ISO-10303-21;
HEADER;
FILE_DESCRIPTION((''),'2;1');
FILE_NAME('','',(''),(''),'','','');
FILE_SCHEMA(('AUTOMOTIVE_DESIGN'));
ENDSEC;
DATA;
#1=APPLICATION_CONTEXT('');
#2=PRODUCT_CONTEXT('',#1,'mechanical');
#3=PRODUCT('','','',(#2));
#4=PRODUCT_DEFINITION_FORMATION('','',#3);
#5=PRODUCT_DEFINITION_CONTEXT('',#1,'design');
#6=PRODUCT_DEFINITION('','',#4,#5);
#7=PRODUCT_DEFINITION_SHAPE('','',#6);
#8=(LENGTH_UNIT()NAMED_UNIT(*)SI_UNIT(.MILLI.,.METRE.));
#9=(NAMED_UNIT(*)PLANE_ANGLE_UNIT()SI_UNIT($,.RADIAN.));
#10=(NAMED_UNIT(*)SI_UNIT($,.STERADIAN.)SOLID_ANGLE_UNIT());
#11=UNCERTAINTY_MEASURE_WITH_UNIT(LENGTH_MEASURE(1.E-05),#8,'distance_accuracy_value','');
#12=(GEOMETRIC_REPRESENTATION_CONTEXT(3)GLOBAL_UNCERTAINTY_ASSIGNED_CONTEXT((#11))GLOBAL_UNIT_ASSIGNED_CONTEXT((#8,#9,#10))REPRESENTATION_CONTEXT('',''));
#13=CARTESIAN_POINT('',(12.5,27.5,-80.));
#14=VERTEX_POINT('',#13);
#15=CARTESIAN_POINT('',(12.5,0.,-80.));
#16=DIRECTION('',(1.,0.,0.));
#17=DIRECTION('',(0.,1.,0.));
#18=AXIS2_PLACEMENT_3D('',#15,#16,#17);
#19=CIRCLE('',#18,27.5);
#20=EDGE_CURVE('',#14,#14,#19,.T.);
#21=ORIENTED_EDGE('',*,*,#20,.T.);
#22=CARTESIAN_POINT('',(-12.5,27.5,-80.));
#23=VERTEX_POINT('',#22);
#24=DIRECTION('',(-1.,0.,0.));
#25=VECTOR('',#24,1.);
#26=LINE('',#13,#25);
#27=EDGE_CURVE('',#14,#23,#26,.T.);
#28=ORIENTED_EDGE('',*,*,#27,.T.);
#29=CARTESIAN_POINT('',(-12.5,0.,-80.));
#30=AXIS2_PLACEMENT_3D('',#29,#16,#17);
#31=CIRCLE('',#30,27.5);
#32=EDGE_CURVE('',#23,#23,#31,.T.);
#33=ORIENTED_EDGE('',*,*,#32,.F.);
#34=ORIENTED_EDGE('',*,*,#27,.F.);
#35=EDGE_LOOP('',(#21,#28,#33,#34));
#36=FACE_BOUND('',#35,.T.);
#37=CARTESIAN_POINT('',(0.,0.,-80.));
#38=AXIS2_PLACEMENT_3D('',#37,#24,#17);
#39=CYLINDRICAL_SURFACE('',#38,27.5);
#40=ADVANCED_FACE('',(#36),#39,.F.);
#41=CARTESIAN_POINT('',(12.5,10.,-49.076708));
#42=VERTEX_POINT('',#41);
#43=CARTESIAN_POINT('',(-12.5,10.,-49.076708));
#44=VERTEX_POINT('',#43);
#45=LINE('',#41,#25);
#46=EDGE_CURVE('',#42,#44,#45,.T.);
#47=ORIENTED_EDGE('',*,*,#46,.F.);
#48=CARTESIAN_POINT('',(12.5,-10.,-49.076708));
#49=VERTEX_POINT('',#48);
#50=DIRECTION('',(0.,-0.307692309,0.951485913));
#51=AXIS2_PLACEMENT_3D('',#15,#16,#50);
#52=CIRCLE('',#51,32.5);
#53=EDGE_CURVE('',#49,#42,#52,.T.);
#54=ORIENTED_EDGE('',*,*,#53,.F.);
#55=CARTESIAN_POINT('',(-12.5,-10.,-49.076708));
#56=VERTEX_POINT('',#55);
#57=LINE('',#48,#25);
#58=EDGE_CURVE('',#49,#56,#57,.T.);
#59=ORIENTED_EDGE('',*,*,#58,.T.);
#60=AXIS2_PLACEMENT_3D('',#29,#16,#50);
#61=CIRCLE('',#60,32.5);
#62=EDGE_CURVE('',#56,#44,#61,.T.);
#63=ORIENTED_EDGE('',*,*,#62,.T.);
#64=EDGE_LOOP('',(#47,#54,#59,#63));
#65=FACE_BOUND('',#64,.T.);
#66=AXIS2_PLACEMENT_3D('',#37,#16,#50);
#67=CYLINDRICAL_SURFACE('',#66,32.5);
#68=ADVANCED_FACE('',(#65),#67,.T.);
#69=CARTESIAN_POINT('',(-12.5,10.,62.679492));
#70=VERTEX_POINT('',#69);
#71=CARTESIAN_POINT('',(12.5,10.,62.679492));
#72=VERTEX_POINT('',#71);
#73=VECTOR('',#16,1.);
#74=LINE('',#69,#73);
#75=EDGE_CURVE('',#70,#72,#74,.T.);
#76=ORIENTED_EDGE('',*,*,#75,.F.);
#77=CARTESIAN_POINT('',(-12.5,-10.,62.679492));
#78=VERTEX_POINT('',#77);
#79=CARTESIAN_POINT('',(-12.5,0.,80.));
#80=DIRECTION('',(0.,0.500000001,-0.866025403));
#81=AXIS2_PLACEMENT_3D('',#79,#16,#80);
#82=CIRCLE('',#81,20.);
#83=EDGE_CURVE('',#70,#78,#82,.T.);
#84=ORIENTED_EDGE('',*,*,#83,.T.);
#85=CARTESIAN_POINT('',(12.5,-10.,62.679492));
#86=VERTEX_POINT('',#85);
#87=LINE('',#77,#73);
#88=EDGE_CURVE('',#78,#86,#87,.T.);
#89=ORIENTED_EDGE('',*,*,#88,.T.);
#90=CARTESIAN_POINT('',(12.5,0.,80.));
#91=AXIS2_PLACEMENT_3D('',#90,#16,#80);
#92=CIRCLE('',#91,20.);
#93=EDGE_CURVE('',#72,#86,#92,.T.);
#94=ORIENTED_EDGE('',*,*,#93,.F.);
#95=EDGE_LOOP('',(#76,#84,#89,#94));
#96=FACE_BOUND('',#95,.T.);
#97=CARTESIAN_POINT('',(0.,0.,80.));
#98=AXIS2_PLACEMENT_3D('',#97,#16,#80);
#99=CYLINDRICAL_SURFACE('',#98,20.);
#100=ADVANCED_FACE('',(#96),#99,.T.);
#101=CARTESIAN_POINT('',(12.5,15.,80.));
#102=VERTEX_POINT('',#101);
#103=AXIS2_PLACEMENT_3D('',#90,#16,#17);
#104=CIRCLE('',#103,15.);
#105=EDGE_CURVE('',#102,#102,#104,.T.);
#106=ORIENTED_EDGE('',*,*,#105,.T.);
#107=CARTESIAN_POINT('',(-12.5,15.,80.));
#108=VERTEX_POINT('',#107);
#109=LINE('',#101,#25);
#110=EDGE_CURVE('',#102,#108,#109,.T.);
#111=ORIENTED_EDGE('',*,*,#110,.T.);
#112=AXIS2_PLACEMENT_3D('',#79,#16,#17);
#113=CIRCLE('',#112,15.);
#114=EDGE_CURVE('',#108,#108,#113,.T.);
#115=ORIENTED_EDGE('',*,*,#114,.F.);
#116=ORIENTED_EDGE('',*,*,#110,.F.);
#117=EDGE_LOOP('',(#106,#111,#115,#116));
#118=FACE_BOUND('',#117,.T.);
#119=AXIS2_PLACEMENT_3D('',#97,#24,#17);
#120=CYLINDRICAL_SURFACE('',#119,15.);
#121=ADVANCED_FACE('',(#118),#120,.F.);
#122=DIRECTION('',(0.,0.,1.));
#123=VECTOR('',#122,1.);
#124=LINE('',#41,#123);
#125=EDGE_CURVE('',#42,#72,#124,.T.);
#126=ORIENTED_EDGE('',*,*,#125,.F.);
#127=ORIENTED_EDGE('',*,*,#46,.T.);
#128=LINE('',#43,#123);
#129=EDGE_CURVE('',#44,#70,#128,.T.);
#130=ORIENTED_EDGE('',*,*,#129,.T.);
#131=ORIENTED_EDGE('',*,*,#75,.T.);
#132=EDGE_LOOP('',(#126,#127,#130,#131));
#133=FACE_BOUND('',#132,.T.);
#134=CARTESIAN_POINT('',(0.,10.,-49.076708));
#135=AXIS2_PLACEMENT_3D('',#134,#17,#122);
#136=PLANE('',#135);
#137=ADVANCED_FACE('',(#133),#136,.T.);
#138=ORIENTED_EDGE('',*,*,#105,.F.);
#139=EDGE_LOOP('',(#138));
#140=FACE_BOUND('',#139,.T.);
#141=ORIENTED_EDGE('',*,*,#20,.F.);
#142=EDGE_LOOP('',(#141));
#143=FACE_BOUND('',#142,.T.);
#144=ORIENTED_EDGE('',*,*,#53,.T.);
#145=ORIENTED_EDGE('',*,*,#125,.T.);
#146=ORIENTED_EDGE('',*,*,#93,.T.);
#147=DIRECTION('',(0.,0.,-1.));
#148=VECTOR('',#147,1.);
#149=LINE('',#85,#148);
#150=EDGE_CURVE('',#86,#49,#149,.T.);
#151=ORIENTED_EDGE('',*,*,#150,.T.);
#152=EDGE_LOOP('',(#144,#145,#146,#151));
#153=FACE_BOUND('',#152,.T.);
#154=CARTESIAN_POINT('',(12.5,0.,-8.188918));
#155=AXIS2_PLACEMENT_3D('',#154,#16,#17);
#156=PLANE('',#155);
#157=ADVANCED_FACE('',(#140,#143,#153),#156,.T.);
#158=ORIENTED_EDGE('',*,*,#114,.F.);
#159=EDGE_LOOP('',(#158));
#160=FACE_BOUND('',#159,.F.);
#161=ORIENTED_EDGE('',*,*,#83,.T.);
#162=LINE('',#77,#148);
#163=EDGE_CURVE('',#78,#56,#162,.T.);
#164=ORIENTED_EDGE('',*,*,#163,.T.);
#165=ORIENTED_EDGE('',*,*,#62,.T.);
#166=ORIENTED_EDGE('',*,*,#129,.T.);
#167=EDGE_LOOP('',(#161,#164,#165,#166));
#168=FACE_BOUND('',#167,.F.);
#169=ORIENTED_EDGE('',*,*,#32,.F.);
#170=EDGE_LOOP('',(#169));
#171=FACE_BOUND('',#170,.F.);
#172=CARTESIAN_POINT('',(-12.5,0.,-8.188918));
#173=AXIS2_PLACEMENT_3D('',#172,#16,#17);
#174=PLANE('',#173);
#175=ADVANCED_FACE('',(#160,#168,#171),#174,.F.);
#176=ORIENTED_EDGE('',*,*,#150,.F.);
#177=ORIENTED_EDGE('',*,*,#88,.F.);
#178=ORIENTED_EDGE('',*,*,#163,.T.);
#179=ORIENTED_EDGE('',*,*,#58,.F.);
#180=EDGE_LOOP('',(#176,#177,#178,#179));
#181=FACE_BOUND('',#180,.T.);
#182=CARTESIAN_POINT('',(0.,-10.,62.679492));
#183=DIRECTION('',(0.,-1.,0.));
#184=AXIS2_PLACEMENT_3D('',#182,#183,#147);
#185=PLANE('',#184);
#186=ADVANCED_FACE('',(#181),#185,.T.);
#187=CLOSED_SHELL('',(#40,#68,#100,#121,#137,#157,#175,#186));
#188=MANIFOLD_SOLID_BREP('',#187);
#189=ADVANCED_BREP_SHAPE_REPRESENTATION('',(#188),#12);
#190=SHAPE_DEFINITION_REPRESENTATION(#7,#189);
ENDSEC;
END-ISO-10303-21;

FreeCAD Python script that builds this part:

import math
import FreeCAD as App
import Part
import Sketcher
Q = App.Units.Quantity

doc = App.newDocument("Part")
body = doc.addObject("PartDesign::Body", "Body")

# Sketch on YZ plane
sketch1 = body.newObject("Sketcher::SketchObject", "Sketch")
sketch1.AttachmentSupport = (doc.getObject("YZ_Plane"), [""])
sketch1.MapMode = "FlatFace"
sketch1.addGeometry([
    Part.LineSegment(App.Vector(10, -49.076708, 0), App.Vector(10, 62.679492, 0)),  # 0
    Part.ArcOfCircle(Part.Circle(App.Vector(0, 80, 0), App.Vector(0, 0, 1), 20), math.radians(-60), math.radians(240)),  # 1
    Part.LineSegment(App.Vector(-10, 62.679492, 0), App.Vector(-10, -49.076708, 0)),  # 2
    Part.ArcOfCircle(Part.Circle(App.Vector(0, -80, 0), App.Vector(0, 0, 1), 32.5), math.radians(107.920213), math.radians(432.079787)),  # 3
    Part.Circle(App.Vector(0, -80, 0), App.Vector(0, 0, 1), 27.5),  # 4
    Part.Circle(App.Vector(0, 80, 0), App.Vector(0, 0, 1), 15),  # 5
], False)
sketch1.addConstraint([
    Sketcher.Constraint("Coincident", 0, 2, 1, 1),
    Sketcher.Constraint("Coincident", 1, 2, 2, 1),
    Sketcher.Constraint("Coincident", 2, 2, 3, 1),
    Sketcher.Constraint("Coincident", 3, 2, 0, 1),
    Sketcher.Constraint("Vertical", 0),
    Sketcher.Constraint("Vertical", 2),
    Sketcher.Constraint("Coincident", 4, 3, 3, 3),
    Sketcher.Constraint("Coincident", 5, 3, 1, 3),
    Sketcher.Constraint("Symmetric", 1, 3, 3, 3, -1, 1),
    Sketcher.Constraint("Symmetric", 0, 2, 1, 2, -2),
    Sketcher.Constraint("Diameter", 4, Q("55 mm")),
    Sketcher.Constraint("Diameter", 5, Q("30 mm")),
    Sketcher.Constraint("Radius", 1, Q("20 mm")),
    Sketcher.Constraint("Radius", 3, Q("32.5 mm")),
    Sketcher.Constraint("DistanceY", -1, 1, 1, 3, Q("80 mm")),
    Sketcher.Constraint("DistanceX", -1, 1, 0, 2, Q("10 mm")),
])
pad1 = body.newObject("PartDesign::Pad", "Pad")
pad1.Profile = sketch1
pad1.Length = 25
pad1.Midplane = True

doc.recompute()
